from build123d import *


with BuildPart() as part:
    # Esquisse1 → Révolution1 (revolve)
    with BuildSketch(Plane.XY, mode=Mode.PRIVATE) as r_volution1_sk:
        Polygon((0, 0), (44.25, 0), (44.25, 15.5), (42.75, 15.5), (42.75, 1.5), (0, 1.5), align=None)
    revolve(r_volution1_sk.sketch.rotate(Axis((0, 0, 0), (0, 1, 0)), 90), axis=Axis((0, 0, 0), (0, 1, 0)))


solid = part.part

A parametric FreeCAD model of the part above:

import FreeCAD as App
import Part
import Sketcher
Q = App.Units.Quantity

doc = App.newDocument("Part")
body = doc.addObject("PartDesign::Body", "Body")

# Sketch on XY plane
sketch1 = body.newObject("Sketcher::SketchObject", "Sketch")
sketch1.AttachmentSupport = (doc.getObject("XY_Plane"), [""])
sketch1.MapMode = "FlatFace"
sketch1.addGeometry(Part.LineSegment(App.Vector(0, 0, 0), App.Vector(44.2, 0, 0)), False)
sketch1.addGeometry(Part.LineSegment(App.Vector(44.2, 0, 0), App.Vector(44.2, 15.5, 0)), False)
sketch1.addGeometry(Part.LineSegment(App.Vector(44.2, 15.5, 0), App.Vector(42.8, 15.5, 0)), False)
sketch1.addGeometry(Part.LineSegment(App.Vector(42.8, 15.5, 0), App.Vector(42.8, 1.5, 0)), False)
sketch1.addGeometry(Part.LineSegment(App.Vector(42.8, 1.5, 0), App.Vector(0, 1.5, 0)), False)
sketch1.addGeometry(Part.LineSegment(App.Vector(0, 1.5, 0), App.Vector(0, 0, 0)), False)
sketch1.addConstraint(Sketcher.Constraint("Coincident", 0, 2, 1, 1))
sketch1.addConstraint(Sketcher.Constraint("Coincident", 1, 2, 2, 1))
sketch1.addConstraint(Sketcher.Constraint("Coincident", 2, 2, 3, 1))
sketch1.addConstraint(Sketcher.Constraint("Coincident", 3, 2, 4, 1))
sketch1.addConstraint(Sketcher.Constraint("Coincident", 4, 2, 5, 1))
sketch1.addConstraint(Sketcher.Constraint("Coincident", 5, 2, 0, 1))
sketch1.addConstraint(Sketcher.Constraint("Horizontal", 0))
sketch1.addConstraint(Sketcher.Constraint("Vertical", 1))
sketch1.addConstraint(Sketcher.Constraint("Horizontal", 2))
sketch1.addConstraint(Sketcher.Constraint("Vertical", 3))
sketch1.addConstraint(Sketcher.Constraint("Horizontal", 4))
sketch1.addConstraint(Sketcher.Constraint("Vertical", 5))
sketch1.addConstraint(Sketcher.Constraint("Coincident", 5, 2, -1, 1))
sketch1.addConstraint(Sketcher.Constraint("Equal", 2, 5))
sketch1.addConstraint(Sketcher.Constraint("DistanceY", 3, 2, 3, 1, Q("14 mm")))
sketch1.addConstraint(Sketcher.Constraint("DistanceX", 2, 2, 2, 1, Q("1.5 mm")))
sketch1.addConstraint(Sketcher.Constraint("DistanceX", 0, 1, 0, 2, Q("44.25 mm")))
revolution = body.newObject("PartDesign::Revolution", "Revolution")
revolution.Profile = sketch1
revolution.ReferenceAxis = (sketch1, ["V_Axis"])
revolution.Angle = 360

doc.recompute()
